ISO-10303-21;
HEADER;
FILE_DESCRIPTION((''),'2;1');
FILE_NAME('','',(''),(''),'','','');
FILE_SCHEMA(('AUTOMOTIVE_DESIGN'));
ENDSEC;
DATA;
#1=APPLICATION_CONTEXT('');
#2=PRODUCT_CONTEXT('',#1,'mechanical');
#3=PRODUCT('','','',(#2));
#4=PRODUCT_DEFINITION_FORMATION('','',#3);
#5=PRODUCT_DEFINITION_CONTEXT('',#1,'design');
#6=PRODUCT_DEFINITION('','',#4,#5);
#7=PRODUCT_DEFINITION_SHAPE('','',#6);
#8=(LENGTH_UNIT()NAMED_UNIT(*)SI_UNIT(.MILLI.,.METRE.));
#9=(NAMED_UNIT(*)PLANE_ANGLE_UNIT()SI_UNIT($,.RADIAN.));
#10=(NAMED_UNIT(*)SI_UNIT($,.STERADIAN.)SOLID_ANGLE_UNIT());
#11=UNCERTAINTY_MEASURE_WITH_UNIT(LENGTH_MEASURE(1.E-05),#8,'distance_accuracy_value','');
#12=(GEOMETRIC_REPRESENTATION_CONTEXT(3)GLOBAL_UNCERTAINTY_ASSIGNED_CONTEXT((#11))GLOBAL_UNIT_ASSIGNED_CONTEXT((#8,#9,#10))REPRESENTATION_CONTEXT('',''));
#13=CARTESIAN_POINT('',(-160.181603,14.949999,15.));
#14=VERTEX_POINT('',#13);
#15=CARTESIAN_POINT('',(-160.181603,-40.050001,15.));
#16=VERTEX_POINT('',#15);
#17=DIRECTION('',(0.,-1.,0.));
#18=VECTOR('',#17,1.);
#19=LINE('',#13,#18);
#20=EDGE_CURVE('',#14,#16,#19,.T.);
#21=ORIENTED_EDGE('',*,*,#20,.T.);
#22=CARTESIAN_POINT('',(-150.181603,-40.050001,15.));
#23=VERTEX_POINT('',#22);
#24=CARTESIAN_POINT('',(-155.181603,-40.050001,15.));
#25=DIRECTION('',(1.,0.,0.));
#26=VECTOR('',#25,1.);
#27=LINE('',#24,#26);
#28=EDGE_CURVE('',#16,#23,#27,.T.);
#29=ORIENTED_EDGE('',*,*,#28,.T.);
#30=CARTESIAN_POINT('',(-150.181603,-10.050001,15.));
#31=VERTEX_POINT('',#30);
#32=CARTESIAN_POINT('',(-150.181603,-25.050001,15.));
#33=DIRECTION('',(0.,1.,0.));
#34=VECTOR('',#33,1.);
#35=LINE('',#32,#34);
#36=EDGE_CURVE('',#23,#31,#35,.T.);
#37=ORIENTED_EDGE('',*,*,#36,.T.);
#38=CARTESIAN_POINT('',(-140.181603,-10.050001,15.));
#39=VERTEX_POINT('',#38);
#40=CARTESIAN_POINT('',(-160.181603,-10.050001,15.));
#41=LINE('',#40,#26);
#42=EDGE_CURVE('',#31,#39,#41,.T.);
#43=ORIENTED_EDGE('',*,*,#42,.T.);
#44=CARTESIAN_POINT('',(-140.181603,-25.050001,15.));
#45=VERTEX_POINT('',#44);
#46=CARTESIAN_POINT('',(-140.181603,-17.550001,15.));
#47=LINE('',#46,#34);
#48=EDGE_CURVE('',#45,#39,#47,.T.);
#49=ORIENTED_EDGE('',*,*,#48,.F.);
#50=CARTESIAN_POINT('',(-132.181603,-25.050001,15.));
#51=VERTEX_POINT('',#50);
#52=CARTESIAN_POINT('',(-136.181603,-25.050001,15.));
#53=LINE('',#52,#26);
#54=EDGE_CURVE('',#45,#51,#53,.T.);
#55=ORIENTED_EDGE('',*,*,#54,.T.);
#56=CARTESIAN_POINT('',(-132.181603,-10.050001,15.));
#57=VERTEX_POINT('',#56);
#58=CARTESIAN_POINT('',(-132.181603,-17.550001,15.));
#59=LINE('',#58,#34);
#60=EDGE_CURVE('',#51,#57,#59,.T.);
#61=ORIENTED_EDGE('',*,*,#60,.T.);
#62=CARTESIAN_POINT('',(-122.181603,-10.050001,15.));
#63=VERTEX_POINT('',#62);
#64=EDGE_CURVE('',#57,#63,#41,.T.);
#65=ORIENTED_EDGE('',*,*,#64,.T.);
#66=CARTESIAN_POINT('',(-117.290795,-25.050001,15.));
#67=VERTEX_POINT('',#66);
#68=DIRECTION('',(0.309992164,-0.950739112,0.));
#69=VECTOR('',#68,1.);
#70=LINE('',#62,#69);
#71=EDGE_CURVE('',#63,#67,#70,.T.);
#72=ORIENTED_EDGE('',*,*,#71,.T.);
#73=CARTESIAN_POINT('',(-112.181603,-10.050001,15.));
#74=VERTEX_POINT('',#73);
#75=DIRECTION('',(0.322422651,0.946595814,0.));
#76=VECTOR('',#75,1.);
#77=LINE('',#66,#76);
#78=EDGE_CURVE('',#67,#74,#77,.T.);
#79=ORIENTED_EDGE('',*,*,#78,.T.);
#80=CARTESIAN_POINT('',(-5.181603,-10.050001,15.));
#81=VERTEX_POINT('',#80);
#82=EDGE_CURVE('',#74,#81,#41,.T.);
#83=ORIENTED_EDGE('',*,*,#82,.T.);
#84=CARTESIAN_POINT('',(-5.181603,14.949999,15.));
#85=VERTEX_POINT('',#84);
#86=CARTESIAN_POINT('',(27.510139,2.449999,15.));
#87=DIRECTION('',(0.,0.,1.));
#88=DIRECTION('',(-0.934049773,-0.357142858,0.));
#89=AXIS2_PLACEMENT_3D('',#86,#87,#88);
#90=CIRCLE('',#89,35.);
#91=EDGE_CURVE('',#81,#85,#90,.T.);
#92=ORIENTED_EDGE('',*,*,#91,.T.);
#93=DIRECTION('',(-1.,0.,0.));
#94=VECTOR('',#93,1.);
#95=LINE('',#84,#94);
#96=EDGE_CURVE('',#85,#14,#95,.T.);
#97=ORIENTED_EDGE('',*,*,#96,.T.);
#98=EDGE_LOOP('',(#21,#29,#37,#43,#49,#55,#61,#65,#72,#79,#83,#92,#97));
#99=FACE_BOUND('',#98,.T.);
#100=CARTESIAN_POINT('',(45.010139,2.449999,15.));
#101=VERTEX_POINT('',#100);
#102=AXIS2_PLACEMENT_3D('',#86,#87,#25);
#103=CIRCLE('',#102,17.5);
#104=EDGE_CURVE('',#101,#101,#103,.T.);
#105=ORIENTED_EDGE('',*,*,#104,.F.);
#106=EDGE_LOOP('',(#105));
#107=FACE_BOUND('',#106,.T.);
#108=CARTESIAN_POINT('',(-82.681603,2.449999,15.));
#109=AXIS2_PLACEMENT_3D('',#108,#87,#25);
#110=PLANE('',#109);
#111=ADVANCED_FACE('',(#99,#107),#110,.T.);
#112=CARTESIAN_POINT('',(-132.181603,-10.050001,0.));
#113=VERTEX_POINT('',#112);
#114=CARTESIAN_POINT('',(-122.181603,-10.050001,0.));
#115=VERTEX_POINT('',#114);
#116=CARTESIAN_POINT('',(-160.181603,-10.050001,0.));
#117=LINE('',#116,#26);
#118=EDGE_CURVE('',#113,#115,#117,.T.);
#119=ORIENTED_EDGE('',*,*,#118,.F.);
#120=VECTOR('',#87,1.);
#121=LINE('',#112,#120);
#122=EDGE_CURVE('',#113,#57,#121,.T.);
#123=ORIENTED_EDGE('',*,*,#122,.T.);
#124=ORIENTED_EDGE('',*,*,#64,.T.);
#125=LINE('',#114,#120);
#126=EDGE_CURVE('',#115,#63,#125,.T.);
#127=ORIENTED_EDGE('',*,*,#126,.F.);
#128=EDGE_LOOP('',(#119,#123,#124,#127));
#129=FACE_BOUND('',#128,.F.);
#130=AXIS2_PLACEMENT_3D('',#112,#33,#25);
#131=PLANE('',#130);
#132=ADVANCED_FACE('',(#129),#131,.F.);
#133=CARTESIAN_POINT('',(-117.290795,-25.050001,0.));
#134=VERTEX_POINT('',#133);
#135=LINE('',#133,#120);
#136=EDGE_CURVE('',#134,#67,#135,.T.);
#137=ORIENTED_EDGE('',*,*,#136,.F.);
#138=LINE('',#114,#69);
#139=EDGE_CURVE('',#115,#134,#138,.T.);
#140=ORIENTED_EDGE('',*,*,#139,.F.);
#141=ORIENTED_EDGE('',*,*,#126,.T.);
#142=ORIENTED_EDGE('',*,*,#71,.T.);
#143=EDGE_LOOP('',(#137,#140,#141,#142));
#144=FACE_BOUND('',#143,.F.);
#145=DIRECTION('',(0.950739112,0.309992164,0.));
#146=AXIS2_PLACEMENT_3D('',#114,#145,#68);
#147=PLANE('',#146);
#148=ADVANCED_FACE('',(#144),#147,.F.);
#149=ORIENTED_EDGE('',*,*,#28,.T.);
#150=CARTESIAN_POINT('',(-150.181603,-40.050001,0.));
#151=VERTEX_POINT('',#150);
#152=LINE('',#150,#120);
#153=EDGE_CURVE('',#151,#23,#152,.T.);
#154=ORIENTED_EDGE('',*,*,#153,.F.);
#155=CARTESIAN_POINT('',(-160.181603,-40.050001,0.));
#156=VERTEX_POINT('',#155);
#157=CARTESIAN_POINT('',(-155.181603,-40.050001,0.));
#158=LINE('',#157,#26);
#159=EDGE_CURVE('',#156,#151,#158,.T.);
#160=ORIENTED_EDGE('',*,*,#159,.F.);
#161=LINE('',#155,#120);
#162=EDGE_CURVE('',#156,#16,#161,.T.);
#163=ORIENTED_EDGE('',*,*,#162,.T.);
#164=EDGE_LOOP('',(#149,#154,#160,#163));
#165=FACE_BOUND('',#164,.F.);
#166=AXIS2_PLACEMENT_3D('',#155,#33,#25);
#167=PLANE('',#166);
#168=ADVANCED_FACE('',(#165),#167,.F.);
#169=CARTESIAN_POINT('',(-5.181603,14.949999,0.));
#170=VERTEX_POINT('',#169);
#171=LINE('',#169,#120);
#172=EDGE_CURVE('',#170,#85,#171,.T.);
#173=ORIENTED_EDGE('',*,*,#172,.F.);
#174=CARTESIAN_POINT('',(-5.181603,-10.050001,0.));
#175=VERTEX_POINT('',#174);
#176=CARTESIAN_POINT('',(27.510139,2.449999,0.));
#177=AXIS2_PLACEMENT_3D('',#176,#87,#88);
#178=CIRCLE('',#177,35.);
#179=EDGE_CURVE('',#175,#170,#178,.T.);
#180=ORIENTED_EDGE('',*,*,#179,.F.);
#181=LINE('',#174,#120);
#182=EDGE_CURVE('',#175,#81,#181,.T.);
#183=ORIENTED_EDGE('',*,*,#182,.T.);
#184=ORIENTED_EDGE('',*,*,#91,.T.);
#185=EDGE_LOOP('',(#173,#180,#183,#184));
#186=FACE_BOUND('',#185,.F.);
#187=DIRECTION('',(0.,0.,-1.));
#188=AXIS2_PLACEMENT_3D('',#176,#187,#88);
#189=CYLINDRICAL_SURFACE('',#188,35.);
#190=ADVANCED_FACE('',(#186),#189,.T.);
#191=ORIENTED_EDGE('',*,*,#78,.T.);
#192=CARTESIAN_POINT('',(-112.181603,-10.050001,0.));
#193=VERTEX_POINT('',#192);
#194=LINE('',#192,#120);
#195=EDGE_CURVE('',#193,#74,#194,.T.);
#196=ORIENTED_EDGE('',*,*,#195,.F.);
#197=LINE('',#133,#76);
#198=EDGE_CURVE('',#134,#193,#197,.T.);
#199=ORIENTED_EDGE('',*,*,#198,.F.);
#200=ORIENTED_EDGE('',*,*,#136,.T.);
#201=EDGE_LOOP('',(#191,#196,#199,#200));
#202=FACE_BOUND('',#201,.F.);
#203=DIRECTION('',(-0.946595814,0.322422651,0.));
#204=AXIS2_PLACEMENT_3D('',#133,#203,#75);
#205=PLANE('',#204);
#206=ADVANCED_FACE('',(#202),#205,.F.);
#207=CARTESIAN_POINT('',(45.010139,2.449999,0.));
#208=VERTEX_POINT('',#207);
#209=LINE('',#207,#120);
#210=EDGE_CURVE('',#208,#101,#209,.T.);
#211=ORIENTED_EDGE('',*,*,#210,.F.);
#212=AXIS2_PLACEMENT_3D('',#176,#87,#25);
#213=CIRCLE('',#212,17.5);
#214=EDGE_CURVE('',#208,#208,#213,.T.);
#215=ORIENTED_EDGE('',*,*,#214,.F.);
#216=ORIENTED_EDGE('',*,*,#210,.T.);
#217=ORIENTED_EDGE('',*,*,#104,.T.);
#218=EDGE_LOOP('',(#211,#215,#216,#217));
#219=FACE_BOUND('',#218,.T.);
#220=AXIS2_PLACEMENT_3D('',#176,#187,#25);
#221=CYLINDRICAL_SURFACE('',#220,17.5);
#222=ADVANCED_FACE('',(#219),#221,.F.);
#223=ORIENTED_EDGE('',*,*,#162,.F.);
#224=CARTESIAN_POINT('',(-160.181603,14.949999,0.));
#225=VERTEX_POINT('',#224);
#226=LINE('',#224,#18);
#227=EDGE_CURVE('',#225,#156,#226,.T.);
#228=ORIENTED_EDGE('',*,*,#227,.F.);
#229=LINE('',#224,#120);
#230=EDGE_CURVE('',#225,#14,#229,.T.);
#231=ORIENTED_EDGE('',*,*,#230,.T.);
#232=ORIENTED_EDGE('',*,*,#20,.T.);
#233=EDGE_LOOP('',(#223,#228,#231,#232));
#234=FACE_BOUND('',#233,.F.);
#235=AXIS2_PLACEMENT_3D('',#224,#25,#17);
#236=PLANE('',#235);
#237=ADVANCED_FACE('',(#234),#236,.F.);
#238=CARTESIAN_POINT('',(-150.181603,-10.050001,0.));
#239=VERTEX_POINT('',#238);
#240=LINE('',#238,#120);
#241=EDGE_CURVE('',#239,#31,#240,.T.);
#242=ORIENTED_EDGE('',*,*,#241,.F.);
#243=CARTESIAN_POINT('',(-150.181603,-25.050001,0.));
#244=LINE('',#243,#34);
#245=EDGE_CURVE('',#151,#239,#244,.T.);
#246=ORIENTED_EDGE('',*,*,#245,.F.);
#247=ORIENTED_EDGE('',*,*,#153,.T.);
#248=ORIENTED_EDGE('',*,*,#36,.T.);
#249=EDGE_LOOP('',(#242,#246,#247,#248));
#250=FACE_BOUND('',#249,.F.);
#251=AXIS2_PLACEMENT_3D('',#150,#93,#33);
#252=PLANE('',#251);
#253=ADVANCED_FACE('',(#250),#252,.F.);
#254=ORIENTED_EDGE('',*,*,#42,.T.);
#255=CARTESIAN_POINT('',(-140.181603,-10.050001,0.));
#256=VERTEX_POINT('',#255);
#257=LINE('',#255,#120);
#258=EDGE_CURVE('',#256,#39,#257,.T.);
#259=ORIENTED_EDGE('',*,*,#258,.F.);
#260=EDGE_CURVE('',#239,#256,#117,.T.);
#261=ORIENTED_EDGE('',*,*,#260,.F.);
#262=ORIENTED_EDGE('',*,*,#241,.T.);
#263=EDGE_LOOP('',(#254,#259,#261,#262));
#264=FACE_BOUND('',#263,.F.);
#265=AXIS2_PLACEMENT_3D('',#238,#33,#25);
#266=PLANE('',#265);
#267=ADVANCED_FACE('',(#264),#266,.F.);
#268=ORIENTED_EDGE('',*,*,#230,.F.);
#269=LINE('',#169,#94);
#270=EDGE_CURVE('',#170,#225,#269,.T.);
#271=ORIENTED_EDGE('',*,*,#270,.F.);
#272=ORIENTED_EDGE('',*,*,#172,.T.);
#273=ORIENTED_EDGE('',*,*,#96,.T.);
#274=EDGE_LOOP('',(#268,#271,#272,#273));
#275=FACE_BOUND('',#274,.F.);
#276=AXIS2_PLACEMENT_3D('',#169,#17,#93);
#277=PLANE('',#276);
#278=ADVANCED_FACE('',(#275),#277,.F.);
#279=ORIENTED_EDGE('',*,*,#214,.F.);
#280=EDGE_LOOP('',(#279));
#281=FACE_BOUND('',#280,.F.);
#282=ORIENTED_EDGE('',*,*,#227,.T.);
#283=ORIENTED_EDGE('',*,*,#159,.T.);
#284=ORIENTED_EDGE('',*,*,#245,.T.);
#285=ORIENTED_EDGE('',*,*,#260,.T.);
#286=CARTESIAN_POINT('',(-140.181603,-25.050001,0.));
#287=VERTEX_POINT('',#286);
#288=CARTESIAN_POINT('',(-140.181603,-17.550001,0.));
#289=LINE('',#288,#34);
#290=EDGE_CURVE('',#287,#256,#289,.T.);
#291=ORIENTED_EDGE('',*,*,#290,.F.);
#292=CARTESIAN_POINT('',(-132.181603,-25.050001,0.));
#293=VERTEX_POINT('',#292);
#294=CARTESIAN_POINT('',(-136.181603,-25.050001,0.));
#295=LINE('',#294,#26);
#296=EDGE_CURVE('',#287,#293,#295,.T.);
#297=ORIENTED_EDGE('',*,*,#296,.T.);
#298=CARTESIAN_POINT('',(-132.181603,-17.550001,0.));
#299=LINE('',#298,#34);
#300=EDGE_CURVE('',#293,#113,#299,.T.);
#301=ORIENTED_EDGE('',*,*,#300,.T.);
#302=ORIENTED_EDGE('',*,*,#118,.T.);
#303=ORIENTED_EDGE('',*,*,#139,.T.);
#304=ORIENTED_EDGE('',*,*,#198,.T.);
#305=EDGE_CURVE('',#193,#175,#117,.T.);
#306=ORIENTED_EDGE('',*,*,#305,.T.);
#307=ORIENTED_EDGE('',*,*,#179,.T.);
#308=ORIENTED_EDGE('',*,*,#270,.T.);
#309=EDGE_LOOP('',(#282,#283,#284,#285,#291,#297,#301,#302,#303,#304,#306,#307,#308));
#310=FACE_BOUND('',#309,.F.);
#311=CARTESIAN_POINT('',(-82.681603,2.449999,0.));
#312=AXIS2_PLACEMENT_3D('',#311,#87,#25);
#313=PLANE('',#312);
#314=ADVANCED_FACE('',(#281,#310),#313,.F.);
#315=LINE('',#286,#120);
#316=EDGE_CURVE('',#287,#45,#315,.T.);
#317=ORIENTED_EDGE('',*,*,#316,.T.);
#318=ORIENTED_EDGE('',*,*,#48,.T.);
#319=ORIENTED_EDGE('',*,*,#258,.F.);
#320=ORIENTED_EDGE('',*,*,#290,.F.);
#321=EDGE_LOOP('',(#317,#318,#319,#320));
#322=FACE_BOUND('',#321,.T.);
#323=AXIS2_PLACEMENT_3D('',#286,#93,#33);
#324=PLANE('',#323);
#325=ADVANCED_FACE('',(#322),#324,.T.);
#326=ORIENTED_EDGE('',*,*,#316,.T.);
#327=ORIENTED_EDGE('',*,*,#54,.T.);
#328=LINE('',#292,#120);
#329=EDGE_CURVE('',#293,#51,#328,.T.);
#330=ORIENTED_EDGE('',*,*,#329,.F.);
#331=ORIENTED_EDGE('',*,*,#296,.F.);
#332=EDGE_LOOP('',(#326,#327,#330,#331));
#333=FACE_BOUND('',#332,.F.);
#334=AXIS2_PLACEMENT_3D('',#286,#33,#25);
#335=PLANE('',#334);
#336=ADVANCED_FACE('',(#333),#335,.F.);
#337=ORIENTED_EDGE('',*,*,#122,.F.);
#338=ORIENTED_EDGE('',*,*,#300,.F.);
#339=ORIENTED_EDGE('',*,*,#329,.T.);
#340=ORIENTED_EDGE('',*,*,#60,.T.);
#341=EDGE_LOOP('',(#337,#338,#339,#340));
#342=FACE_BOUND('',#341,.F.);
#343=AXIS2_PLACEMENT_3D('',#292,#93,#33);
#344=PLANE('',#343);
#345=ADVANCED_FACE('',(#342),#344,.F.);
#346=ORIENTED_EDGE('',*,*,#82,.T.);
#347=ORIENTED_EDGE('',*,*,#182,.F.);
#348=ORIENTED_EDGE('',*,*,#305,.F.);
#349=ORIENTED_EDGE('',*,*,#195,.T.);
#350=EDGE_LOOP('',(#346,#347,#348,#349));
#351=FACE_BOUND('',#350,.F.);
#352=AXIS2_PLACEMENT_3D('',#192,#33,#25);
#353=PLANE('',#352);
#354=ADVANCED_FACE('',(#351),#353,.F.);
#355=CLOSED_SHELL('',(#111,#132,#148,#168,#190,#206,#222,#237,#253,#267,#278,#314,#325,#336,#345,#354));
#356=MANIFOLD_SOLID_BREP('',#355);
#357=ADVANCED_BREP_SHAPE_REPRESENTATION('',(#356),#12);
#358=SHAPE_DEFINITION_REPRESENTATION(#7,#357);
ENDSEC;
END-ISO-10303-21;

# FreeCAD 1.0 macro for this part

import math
import FreeCAD as App
import Part
import Sketcher
from FreeCAD import Vector
Q = App.Units.Quantity

doc = App.newDocument("Part")
params = doc.addObject("Spreadsheet::Sheet", "Params")
for row, (alias, value) in enumerate([
    ("sketch1_diameter", "35 mm"),
    ("sketch1_radius", "35 mm"),
    ("sketch1_width", "155 mm"),
    ("sketch1_width2", "10 mm"),
    ("sketch1_width3", "8 mm"),
    ("pad1_length", "15 mm"),
], start=1):
    params.set(f"A{row}", alias)
    params.set(f"B{row}", "=" + value)
    params.setAlias(f"B{row}", alias)

body = doc.addObject("PartDesign::Body", "Body")

# Sketch on XY plane
sketch1 = body.newObject("Sketcher::SketchObject", "Sketch")
sketch1.AttachmentSupport = (doc.getObject("XY_Plane"), [""])
sketch1.MapMode = "FlatFace"
sketch1.addGeometry(Part.LineSegment(Vector(-5, 15, 0), Vector(-160, 15, 0)), False)
sketch1.addGeometry(Part.LineSegment(Vector(-160, 15, 0), Vector(-160, -40, 0)), False)
sketch1.addGeometry(Part.LineSegment(Vector(-160, -40, 0), Vector(-150, -40, 0)), False)
sketch1.addGeometry(Part.LineSegment(Vector(-150, -40, 0), Vector(-150, -10, 0)), False)
sketch1.addGeometry(Part.LineSegment(Vector(-150, -10, 0), Vector(-140, -10, 0)), False)
sketch1.addGeometry(Part.LineSegment(Vector(-140, -10, 0), Vector(-140, -25, 0)), False)
sketch1.addGeometry(Part.LineSegment(Vector(-140, -25, 0), Vector(-132, -25, 0)), False)
sketch1.addGeometry(Part.LineSegment(Vector(-132, -25, 0), Vector(-132, -10, 0)), False)
sketch1.addGeometry(Part.LineSegment(Vector(-132, -10, 0), Vector(-122, -10, 0)), False)
sketch1.addGeometry(Part.LineSegment(Vector(-122, -10, 0), Vector(-117, -25, 0)), False)
sketch1.addGeometry(Part.LineSegment(Vector(-117, -25, 0), Vector(-112, -10, 0)), False)
sketch1.addGeometry(Part.LineSegment(Vector(-112, -10, 0), Vector(-5, -10, 0)), False)
sketch1.addGeometry(Part.ArcOfCircle(Part.Circle(Vector(28, 2, 0), Vector(0, 0, 1), 35), math.radians(-159), math.radians(159)), False)
sketch1.addGeometry(Part.Circle(Vector(28, 2, 0), Vector(0, 0, 1), 18), False)
sketch1.addConstraint(Sketcher.Constraint("Coincident", 0, 2, 1, 1))
sketch1.addConstraint(Sketcher.Constraint("Coincident", 1, 2, 2, 1))
sketch1.addConstraint(Sketcher.Constraint("Coincident", 2, 2, 3, 1))
sketch1.addConstraint(Sketcher.Constraint("Coincident", 3, 2, 4, 1))
sketch1.addConstraint(Sketcher.Constraint("Coincident", 4, 2, 5, 1))
sketch1.addConstraint(Sketcher.Constraint("Coincident", 5, 2, 6, 1))
sketch1.addConstraint(Sketcher.Constraint("Coincident", 6, 2, 7, 1))
sketch1.addConstraint(Sketcher.Constraint("Coincident", 7, 2, 8, 1))
sketch1.addConstraint(Sketcher.Constraint("Coincident", 8, 2, 9, 1))
sketch1.addConstraint(Sketcher.Constraint("Coincident", 9, 2, 10, 1))
sketch1.addConstraint(Sketcher.Constraint("Coincident", 10, 2, 11, 1))
sketch1.addConstraint(Sketcher.Constraint("Coincident", 11, 2, 12, 1))
sketch1.addConstraint(Sketcher.Constraint("Coincident", 12, 2, 0, 1))
sketch1.addConstraint(Sketcher.Constraint("Horizontal", 0))
sketch1.addConstraint(Sketcher.Constraint("Vertical", 1))
sketch1.addConstraint(Sketcher.Constraint("Horizontal", 2))
sketch1.addConstraint(Sketcher.Constraint("Vertical", 3))
sketch1.addConstraint(Sketcher.Constraint("Horizontal", 4))
sketch1.addConstraint(Sketcher.Constraint("Vertical", 5))
sketch1.addConstraint(Sketcher.Constraint("Horizontal", 6))
sketch1.addConstraint(Sketcher.Constraint("Vertical", 7))
sketch1.addConstraint(Sketcher.Constraint("Horizontal", 8))
sketch1.addConstraint(Sketcher.Constraint("Horizontal", 11))
sketch1.addConstraint(Sketcher.Constraint("Coincident", 13, 3, 12, 3))
sketch1.addConstraint(Sketcher.Constraint("Horizontal", 4, 2, 7, 2))
sketch1.addConstraint(Sketcher.Constraint("Horizontal", 6, 2, 9, 2))
sketch1.addConstraint(Sketcher.Constraint("Horizontal", 8, 2, 10, 2))
sketch1.addConstraint(Sketcher.Constraint("Vertical", 11, 2, 12, 2))
sketch1.addConstraint(Sketcher.Constraint("Equal", 2, 4))
sketch1.addConstraint(Sketcher.Constraint("Equal", 4, 8))
sketch1.addConstraint(Sketcher.Constraint("Diameter", 13, Q("35 mm")))
sketch1.addConstraint(Sketcher.Constraint("Radius", 12, Q("35 mm")))
sketch1.addConstraint(Sketcher.Constraint("DistanceX", 0, 2, 0, 1, Q("155 mm")))
sketch1.addConstraint(Sketcher.Constraint("DistanceX", 2, 1, 2, 2, Q("10 mm")))
sketch1.addConstraint(Sketcher.Constraint("DistanceX", 6, 1, 6, 2, Q("8 mm")))
sketch1.addConstraint(Sketcher.Constraint("DistanceX", 11, 1, 11, 2, Q("107 mm")))
sketch1.addConstraint(Sketcher.Constraint("DistanceY", 1, 2, 1, 1, Q("55 mm")))
sketch1.addConstraint(Sketcher.Constraint("DistanceY", 3, 1, 3, 2, Q("30 mm")))
sketch1.addConstraint(Sketcher.Constraint("DistanceY", 5, 2, 5, 1, Q("15 mm")))
sketch1.addConstraint(Sketcher.Constraint("DistanceY", -1, 1, 12, 3, Q("2.449999 mm")))
sketch1.addConstraint(Sketcher.Constraint("Distance", 9, Q("15.777199 mm")))
sketch1.addConstraint(Sketcher.Constraint("DistanceX", -1, 1, 12, 3, Q("27.510139 mm")))
sketch1.setExpression("Constraints[30]", "Params.sketch1_diameter")
sketch1.setExpression("Constraints[31]", "Params.sketch1_radius")
sketch1.setExpression("Constraints[32]", "Params.sketch1_width")
sketch1.setExpression("Constraints[33]", "Params.sketch1_width2")
sketch1.setExpression("Constraints[34]", "Params.sketch1_width3")
pad1 = body.newObject("PartDesign::Pad", "Pad")
pad1.Profile = sketch1
pad1.setExpression("Length", "Params.pad1_length")

doc.recompute()
